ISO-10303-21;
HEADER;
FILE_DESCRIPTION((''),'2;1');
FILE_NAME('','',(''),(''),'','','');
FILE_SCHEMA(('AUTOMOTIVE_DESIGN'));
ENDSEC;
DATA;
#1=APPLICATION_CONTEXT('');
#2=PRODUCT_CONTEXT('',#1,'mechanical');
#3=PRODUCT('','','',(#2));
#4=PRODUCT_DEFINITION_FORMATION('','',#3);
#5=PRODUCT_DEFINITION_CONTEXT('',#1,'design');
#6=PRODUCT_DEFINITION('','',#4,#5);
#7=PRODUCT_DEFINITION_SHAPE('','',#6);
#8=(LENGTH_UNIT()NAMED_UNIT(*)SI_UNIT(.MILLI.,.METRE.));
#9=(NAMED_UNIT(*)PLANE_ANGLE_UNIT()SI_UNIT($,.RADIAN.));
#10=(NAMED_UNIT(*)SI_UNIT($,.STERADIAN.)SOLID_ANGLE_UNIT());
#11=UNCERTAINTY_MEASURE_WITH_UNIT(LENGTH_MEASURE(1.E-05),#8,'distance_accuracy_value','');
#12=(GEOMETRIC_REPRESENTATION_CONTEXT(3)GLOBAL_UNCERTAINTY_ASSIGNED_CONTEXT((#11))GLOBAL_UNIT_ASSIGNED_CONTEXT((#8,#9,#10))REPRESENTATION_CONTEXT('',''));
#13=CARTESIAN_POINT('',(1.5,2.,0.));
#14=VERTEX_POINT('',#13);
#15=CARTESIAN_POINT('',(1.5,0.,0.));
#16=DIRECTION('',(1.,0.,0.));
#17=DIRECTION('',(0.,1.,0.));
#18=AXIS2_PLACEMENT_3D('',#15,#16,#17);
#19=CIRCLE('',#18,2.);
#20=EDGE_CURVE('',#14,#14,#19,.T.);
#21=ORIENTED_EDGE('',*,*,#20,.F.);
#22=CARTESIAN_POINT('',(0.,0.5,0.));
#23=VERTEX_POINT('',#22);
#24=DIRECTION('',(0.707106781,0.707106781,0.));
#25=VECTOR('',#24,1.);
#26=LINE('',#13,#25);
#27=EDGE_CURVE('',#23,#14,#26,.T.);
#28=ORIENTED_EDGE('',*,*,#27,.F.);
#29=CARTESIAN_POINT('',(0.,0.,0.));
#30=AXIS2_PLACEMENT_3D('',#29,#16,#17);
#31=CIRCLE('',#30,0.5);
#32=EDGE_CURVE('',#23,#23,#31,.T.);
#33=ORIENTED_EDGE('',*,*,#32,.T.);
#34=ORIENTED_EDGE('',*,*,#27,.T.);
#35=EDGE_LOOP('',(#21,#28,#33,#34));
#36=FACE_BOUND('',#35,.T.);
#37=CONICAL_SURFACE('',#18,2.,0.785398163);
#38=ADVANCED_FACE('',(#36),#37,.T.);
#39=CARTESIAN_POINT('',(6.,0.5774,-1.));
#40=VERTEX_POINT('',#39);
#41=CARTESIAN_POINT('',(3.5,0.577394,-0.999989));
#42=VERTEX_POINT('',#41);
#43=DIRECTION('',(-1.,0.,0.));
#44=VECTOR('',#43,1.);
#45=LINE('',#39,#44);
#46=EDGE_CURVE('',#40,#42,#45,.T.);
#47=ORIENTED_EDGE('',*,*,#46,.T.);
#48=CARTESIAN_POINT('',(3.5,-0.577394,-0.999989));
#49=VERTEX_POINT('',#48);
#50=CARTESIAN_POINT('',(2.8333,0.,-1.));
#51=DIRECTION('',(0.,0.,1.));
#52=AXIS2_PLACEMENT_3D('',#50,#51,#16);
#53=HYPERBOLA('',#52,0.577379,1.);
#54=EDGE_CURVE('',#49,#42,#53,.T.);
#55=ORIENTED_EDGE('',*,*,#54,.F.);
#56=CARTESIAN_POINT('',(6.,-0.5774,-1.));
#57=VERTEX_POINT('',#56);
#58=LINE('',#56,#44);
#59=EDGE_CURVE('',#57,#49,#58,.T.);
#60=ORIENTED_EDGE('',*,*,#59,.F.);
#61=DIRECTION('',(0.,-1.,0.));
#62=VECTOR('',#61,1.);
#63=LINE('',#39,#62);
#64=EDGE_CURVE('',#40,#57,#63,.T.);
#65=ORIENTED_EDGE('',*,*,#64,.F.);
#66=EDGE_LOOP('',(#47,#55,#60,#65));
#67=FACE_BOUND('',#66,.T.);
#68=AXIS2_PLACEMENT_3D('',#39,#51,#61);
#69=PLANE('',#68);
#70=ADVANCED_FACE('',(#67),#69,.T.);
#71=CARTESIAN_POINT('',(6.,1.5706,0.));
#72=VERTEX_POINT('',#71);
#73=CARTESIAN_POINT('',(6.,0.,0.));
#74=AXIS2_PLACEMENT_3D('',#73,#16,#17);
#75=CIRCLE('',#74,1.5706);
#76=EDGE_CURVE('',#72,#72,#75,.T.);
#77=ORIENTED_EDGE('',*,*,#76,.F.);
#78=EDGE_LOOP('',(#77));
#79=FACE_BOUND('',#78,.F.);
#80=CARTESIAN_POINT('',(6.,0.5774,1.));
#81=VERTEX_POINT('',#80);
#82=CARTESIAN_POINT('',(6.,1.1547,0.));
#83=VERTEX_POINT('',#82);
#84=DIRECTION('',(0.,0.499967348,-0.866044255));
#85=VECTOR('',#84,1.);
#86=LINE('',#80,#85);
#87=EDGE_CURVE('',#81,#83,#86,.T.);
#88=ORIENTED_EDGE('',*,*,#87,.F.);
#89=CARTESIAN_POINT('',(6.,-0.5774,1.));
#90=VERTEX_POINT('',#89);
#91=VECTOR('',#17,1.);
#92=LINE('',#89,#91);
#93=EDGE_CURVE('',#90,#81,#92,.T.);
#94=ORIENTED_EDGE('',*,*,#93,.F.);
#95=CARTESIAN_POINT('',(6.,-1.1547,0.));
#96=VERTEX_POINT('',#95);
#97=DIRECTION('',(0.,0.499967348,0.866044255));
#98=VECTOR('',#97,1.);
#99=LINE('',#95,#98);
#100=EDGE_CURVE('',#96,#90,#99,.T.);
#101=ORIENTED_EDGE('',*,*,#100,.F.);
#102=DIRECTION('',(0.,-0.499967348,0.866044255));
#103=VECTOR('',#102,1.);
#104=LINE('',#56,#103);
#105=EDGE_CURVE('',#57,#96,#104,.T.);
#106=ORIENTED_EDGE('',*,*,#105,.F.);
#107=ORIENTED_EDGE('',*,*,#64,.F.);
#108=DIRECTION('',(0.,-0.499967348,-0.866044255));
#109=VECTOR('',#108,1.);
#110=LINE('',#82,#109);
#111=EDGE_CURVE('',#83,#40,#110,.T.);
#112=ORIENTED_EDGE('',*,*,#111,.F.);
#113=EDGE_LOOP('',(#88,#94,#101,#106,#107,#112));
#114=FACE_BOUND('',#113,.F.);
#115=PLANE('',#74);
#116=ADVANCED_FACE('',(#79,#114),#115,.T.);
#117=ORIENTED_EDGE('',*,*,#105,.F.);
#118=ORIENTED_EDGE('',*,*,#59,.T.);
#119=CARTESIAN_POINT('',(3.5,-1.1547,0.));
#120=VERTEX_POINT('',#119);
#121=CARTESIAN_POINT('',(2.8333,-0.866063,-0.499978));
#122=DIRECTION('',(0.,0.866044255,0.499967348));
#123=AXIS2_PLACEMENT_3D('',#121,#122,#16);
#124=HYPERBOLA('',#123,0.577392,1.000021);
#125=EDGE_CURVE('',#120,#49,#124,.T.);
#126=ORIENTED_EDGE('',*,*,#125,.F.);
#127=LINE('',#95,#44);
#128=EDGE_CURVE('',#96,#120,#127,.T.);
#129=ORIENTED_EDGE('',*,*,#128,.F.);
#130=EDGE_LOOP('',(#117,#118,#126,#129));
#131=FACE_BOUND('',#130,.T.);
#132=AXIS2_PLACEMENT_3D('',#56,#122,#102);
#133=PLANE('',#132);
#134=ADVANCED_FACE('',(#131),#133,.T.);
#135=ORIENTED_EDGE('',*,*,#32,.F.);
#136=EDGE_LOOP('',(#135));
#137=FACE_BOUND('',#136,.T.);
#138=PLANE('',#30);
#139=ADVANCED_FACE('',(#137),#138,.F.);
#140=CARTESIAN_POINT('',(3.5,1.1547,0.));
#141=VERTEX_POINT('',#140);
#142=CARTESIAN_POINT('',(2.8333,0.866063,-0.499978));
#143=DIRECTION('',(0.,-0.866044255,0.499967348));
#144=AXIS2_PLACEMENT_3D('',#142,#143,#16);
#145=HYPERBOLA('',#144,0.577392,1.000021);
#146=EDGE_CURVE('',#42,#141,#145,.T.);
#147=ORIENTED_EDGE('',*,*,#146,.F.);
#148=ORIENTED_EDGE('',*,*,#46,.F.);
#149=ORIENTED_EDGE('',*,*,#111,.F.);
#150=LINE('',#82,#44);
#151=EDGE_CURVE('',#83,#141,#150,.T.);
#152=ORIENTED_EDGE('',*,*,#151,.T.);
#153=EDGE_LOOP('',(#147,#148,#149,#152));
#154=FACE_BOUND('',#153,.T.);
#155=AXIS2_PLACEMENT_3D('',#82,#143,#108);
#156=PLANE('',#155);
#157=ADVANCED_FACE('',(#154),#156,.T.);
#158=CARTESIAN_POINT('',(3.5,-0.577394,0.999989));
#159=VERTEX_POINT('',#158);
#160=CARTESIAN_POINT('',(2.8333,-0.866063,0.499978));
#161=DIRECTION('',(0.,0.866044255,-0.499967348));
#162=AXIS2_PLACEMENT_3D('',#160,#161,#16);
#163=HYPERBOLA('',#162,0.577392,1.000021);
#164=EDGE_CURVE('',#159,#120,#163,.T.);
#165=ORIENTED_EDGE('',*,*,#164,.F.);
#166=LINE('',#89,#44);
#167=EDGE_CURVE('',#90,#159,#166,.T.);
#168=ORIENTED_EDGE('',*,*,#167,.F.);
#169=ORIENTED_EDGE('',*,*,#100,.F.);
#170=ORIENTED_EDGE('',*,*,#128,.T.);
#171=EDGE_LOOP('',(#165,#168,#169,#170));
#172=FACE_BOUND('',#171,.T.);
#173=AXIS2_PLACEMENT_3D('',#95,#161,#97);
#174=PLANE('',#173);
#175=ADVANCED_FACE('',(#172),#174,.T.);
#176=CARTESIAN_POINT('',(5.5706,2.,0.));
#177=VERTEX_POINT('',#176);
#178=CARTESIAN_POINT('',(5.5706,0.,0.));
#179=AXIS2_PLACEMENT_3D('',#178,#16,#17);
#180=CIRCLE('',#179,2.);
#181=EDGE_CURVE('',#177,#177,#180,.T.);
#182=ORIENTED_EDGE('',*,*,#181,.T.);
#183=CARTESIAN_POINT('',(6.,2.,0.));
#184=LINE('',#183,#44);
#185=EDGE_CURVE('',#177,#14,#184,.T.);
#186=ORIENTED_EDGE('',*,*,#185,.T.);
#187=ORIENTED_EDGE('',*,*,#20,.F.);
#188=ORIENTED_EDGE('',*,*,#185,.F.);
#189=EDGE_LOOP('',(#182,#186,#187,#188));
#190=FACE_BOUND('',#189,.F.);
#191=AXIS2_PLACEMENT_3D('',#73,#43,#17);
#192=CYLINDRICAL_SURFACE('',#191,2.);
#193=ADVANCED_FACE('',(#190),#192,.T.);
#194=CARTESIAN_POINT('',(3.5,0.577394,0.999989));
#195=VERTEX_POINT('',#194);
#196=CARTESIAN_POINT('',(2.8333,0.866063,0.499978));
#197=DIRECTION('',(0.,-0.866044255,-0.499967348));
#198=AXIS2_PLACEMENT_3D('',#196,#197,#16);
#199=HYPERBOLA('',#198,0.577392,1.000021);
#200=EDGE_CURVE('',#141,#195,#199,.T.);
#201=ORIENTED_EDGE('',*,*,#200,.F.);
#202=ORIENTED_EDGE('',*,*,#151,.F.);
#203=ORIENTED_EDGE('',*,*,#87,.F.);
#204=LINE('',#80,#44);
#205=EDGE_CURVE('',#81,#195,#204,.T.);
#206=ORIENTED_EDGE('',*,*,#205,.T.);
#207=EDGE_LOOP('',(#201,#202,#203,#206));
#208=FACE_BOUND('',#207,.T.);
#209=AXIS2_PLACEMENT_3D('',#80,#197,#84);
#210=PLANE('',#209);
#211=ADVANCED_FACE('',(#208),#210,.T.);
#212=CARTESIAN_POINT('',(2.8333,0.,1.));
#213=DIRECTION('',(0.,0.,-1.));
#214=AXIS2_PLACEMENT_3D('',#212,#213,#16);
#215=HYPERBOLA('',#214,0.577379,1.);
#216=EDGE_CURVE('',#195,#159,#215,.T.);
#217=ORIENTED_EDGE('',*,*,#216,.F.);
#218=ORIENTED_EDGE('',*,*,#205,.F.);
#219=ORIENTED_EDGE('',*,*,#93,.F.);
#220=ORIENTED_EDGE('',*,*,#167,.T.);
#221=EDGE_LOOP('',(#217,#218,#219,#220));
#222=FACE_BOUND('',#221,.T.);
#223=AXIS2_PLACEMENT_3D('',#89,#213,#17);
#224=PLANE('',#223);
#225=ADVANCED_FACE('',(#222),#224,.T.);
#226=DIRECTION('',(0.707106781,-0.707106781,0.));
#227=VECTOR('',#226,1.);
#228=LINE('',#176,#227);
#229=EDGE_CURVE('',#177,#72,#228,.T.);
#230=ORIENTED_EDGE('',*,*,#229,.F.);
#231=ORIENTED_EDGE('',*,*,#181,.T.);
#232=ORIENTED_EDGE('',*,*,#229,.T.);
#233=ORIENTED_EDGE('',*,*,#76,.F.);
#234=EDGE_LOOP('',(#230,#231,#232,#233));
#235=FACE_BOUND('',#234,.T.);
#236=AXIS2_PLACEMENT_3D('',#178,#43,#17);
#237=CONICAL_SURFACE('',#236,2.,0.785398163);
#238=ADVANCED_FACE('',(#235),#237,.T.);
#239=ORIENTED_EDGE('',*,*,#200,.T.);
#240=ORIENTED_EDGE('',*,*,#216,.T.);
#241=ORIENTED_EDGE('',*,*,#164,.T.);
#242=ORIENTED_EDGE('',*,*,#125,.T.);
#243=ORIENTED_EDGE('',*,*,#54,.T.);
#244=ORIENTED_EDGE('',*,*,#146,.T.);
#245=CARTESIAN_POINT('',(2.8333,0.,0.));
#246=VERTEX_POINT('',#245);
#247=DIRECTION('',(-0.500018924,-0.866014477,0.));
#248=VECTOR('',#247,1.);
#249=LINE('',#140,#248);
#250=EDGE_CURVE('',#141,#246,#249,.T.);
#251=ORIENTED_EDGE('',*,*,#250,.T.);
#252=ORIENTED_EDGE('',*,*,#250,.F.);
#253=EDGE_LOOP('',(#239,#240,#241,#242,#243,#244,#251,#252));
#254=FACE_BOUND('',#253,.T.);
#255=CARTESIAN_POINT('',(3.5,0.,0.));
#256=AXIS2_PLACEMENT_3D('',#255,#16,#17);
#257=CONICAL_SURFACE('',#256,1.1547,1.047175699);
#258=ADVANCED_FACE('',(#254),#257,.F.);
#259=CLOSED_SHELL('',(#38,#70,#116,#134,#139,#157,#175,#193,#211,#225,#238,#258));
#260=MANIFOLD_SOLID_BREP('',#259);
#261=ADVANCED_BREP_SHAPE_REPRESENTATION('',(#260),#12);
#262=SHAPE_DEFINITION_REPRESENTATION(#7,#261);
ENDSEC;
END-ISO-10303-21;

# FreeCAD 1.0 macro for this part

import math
import FreeCAD as App
import Part
import Sketcher


def edges_at(feature, points):
    """Names of the edges that pass closest to the given points."""
    edges = feature.Shape.Edges
    near = lambda p: min(range(len(edges)), key=lambda i: edges[i].distToShape(Part.Vertex(*p))[0])
    return sorted({f"Edge{near(p) + 1}" for p in points})

doc = App.newDocument("Part")
params = doc.addObject("Spreadsheet::Sheet", "Params")
for row, (alias, value) in enumerate([
    ("sketch1_width", "6 mm"),
    ("sketch1_width2", "2.5 mm"),
    ("sketch1_height", "2 mm"),
    ("revolution_angle", "360 deg"),
    ("chamfer_size", "1.5 mm"),
    ("chamfer2_size", "0.4294 mm"),
], start=1):
    params.set(f"A{row}", alias)
    params.set(f"B{row}", "=" + value)
    params.setAlias(f"B{row}", alias)

body = doc.addObject("PartDesign::Body", "Body")

# Sketch on XY plane
sketch1 = doc.addObject("Sketcher::SketchObject", "Sketch")
body.addObject(sketch1)
sketch1.AttachmentSupport = (doc.XY_Plane, [""])
sketch1.MapMode = "FlatFace"
sketch1.addGeometry(Part.LineSegment(App.Vector(0, 2, 0), App.Vector(0, 0, 0)), False)
sketch1.addGeometry(Part.LineSegment(App.Vector(0, 0, 0), App.Vector(2.8, 0, 0)), False)
sketch1.addGeometry(Part.LineSegment(App.Vector(2.8, 0, 0), App.Vector(3.5, 1.2, 0)), False)
sketch1.addGeometry(Part.LineSegment(App.Vector(3.5, 1.2, 0), App.Vector(6, 1.2, 0)), False)
sketch1.addGeometry(Part.LineSegment(App.Vector(6, 1.2, 0), App.Vector(6, 2, 0)), False)
sketch1.addGeometry(Part.LineSegment(App.Vector(6, 2, 0), App.Vector(0, 2, 0)), False)
sketch1.addConstraint(Sketcher.Constraint("Coincident", 0, 2, 1, 1))
sketch1.addConstraint(Sketcher.Constraint("Coincident", 1, 2, 2, 1))
sketch1.addConstraint(Sketcher.Constraint("Coincident", 2, 2, 3, 1))
sketch1.addConstraint(Sketcher.Constraint("Coincident", 3, 2, 4, 1))
sketch1.addConstraint(Sketcher.Constraint("Coincident", 4, 2, 5, 1))
sketch1.addConstraint(Sketcher.Constraint("Coincident", 5, 2, 0, 1))
sketch1.addConstraint(Sketcher.Constraint("Vertical", 0))
sketch1.addConstraint(Sketcher.Constraint("Horizontal", 1))
sketch1.addConstraint(Sketcher.Constraint("Horizontal", 3))
sketch1.addConstraint(Sketcher.Constraint("Vertical", 4))
sketch1.addConstraint(Sketcher.Constraint("Horizontal", 5))
sketch1.addConstraint(Sketcher.Constraint("Coincident", 0, 2, -1, 1))
sketch1.addConstraint(Sketcher.Constraint("DistanceX", 5, 2, 5, 1, 6.0))
sketch1.addConstraint(Sketcher.Constraint("DistanceX", 3, 1, 3, 2, 2.5))
sketch1.addConstraint(Sketcher.Constraint("DistanceY", 0, 2, 0, 1, 2.0))
sketch1.addConstraint(Sketcher.Constraint("DistanceX", 1, 1, 1, 2, 2.8333))
sketch1.addConstraint(Sketcher.Constraint("DistanceY", 4, 1, 4, 2, 0.8453))
sketch1.setExpression("Constraints[12]", "Params.sketch1_width")
sketch1.setExpression("Constraints[13]", "Params.sketch1_width2")
sketch1.setExpression("Constraints[14]", "Params.sketch1_height")
revolution = doc.addObject("PartDesign::Revolution", "Revolution")
body.addObject(revolution)
revolution.Profile = sketch1
revolution.ReferenceAxis = (sketch1, ["H_Axis"])
revolution.setExpression("Angle", "Params.revolution_angle")

# Sketch on YZ plane
sketch2 = doc.addObject("Sketcher::SketchObject", "Sketch001")
body.addObject(sketch2)
sketch2.AttachmentSupport = (doc.YZ_Plane, [""])
sketch2.MapMode = "FlatFace"
sketch2.AttachmentOffset = App.Placement(App.Vector(0, 0, 6), App.Rotation())
sketch2.addGeometry(Part.LineSegment(App.Vector(0.6, 1, 0), App.Vector(1.2, 0, 0)), False)
sketch2.addGeometry(Part.ArcOfCircle(Part.Circle(App.Vector(0, 0, 0), App.Vector(0, 0, 1), 1.2), math.radians(0), math.radians(60)), False)
sketch2.addGeometry(Part.ArcOfCircle(Part.Circle(App.Vector(0, 0, 0), App.Vector(0, 0, 1), 1.2), math.radians(-60), math.radians(0)), False)
sketch2.addGeometry(Part.LineSegment(App.Vector(1.2, 0, 0), App.Vector(0.6, -1, 0)), False)
sketch2.addGeometry(Part.LineSegment(App.Vector(-0.6, 1, 0), App.Vector(0.6, 1, 0)), False)
sketch2.addGeometry(Part.ArcOfCircle(Part.Circle(App.Vector(0, 0, 0), App.Vector(0, 0, 1), 1.2), math.radians(60), math.radians(120)), False)
sketch2.addGeometry(Part.ArcOfCircle(Part.Circle(App.Vector(0, 0, 0), App.Vector(0, 0, 1), 1.2), math.radians(-120), math.radians(-60)), False)
sketch2.addGeometry(Part.LineSegment(App.Vector(-0.6, -1, 0), App.Vector(0.6, -1, 0)), False)
sketch2.addGeometry(Part.LineSegment(App.Vector(-1.2, 0, 0), App.Vector(-0.6, 1, 0)), False)
sketch2.addGeometry(Part.ArcOfCircle(Part.Circle(App.Vector(0, 0, 0), App.Vector(0, 0, 1), 1.2), math.radians(120), math.radians(180)), False)
sketch2.addGeometry(Part.ArcOfCircle(Part.Circle(App.Vector(0, 0, 0), App.Vector(0, 0, 1), 1.2), math.radians(180), math.radians(240)), False)
sketch2.addGeometry(Part.LineSegment(App.Vector(-1.2, 0, 0), App.Vector(-0.6, -1, 0)), False)
sketch2.addConstraint(Sketcher.Constraint("Coincident", 0, 1, 1, 2))
sketch2.addConstraint(Sketcher.Constraint("Coincident", 1, 1, 0, 2))
sketch2.addConstraint(Sketcher.Constraint("Coincident", 2, 1, 3, 2))
sketch2.addConstraint(Sketcher.Constraint("Coincident", 3, 1, 2, 2))
sketch2.addConstraint(Sketcher.Constraint("Coincident", 4, 1, 5, 2))
sketch2.addConstraint(Sketcher.Constraint("Coincident", 5, 1, 4, 2))
sketch2.addConstraint(Sketcher.Constraint("Coincident", 6, 1, 7, 1))
sketch2.addConstraint(Sketcher.Constraint("Coincident", 7, 2, 6, 2))
sketch2.addConstraint(Sketcher.Constraint("Coincident", 8, 1, 9, 2))
sketch2.addConstraint(Sketcher.Constraint("Coincident", 9, 1, 8, 2))
sketch2.addConstraint(Sketcher.Constraint("Coincident", 10, 1, 11, 1))
sketch2.addConstraint(Sketcher.Constraint("Coincident", 11, 2, 10, 2))
sketch2.addConstraint(Sketcher.Constraint("Horizontal", 4))
sketch2.addConstraint(Sketcher.Constraint("Horizontal", 7))
sketch2.addConstraint(Sketcher.Constraint("Coincident", 1, 3, -1, 1))
sketch2.addConstraint(Sketcher.Constraint("Coincident", 2, 3, -1, 1))
sketch2.addConstraint(Sketcher.Constraint("Coincident", 5, 3, -1, 1))
sketch2.addConstraint(Sketcher.Constraint("Coincident", 6, 3, -1, 1))
sketch2.addConstraint(Sketcher.Constraint("Coincident", 9, 3, -1, 1))
sketch2.addConstraint(Sketcher.Constraint("Coincident", 10, 3, -1, 1))
sketch2.addConstraint(Sketcher.Constraint("Coincident", 3, 1, 1, 1))
sketch2.addConstraint(Sketcher.Constraint("Coincident", 5, 1, 0, 1))
sketch2.addConstraint(Sketcher.Constraint("Coincident", 7, 2, 2, 1))
sketch2.addConstraint(Sketcher.Constraint("Coincident", 9, 1, 4, 1))
sketch2.addConstraint(Sketcher.Constraint("Coincident", 10, 1, 8, 1))
sketch2.addConstraint(Sketcher.Constraint("PointOnObject", 1, 1, -1))
sketch2.addConstraint(Sketcher.Constraint("PointOnObject", 8, 1, -1))
sketch2.addConstraint(Sketcher.Constraint("Parallel", 3, 8))
sketch2.addConstraint(Sketcher.Constraint("Parallel", 0, 11))
sketch2.addConstraint(Sketcher.Constraint("DistanceY", -1, 1, 0, 1, 1.0))
sketch2.addConstraint(Sketcher.Constraint("Radius", 1, 1.1547))
pad1 = doc.addObject("PartDesign::Pad", "Pad")
body.addObject(pad1)
pad1.Profile = sketch2
pad1.Type = "UpToFirst"
pad1.Reversed = True
doc.recompute()

chamfer = doc.addObject("PartDesign::Chamfer", "Chamfer")
body.addObject(chamfer)
chamfer.Base = (pad1, edges_at(pad1, [(0, -2, 0)]))
chamfer.setExpression("Size", "Params.chamfer_size")
doc.recompute()

chamfer2 = doc.addObject("PartDesign::Chamfer", "Chamfer001")
body.addObject(chamfer2)
chamfer2.Base = (chamfer, edges_at(chamfer, [(6, -2, 0)]))
chamfer2.setExpression("Size", "Params.chamfer2_size")

doc.recompute()
